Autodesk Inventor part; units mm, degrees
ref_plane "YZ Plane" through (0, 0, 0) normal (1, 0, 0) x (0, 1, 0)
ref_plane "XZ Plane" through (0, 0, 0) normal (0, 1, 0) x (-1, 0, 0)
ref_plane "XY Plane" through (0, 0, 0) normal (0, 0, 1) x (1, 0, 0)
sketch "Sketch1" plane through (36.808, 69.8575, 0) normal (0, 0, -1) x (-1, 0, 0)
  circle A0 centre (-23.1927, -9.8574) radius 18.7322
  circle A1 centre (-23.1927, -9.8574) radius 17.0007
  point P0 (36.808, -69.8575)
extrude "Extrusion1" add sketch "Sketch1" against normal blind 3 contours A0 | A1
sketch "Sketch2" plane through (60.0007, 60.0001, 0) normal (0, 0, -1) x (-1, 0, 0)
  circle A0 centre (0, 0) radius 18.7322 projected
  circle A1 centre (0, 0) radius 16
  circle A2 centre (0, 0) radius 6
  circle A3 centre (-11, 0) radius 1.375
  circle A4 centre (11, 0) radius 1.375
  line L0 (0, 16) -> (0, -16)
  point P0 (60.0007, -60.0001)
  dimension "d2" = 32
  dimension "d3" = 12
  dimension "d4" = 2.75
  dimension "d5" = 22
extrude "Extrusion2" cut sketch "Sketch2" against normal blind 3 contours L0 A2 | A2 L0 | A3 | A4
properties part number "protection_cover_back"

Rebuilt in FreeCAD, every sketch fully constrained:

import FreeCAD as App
import Part
import Sketcher
Q = App.Units.Quantity

doc = App.newDocument("Part")
body = doc.addObject("PartDesign::Body", "Body")

# Sketch on XY plane
sketch1 = body.newObject("Sketcher::SketchObject", "Sketch")
sketch1.AttachmentSupport = (doc.getObject("XY_Plane"), [""])
sketch1.MapMode = "FlatFace"
sketch1.addGeometry(Part.Circle(App.Vector(60.0007, 60.0001, 0), App.Vector(0, 0, 1), 18.7322), False)
sketch1.addConstraint(Sketcher.Constraint("DistanceY", -1, 1, 0, 3, Q("60 mm")))
sketch1.addConstraint(Sketcher.Constraint("Diameter", 0, Q("37.4644 mm")))
sketch1.addConstraint(Sketcher.Constraint("DistanceX", -1, 1, 0, 3, Q("60.0007 mm")))
pad1 = body.newObject("PartDesign::Pad", "Pad")
pad1.Profile = sketch1
pad1.Length = 3

# Sketch on XY plane
sketch2 = body.newObject("Sketcher::SketchObject", "Sketch001")
sketch2.AttachmentSupport = (doc.getObject("XY_Plane"), [""])
sketch2.MapMode = "FlatFace"
sketch2.addGeometry(Part.Circle(App.Vector(60.0007, 60.0001, 0), App.Vector(0, 0, 1), 6), False)
sketch2.addGeometry(Part.Circle(App.Vector(71.0007, 60.0001, 0), App.Vector(0, 0, 1), 1.375), False)
sketch2.addGeometry(Part.Circle(App.Vector(49.0007, 60.0001, 0), App.Vector(0, 0, 1), 1.375), False)
sketch2.addConstraint(Sketcher.Constraint("Equal", 1, 2))
sketch2.addConstraint(Sketcher.Constraint("Horizontal", 0, 3, 1, 3))
sketch2.addConstraint(Sketcher.Constraint("Horizontal", 1, 3, 2, 3))
sketch2.addConstraint(Sketcher.Constraint("Diameter", 0, Q("12 mm")))
sketch2.addConstraint(Sketcher.Constraint("Diameter", 1, Q("2.75 mm")))
sketch2.addConstraint(Sketcher.Constraint("DistanceX", 2, 3, 1, 3, Q("22 mm")))
sketch2.addConstraint(Sketcher.Constraint("DistanceY", -1, 1, 0, 3, Q("60 mm")))
sketch2.addConstraint(Sketcher.Constraint("DistanceX", 0, 3, 1, 3, Q("11 mm")))
sketch2.addConstraint(Sketcher.Constraint("DistanceX", -1, 1, 0, 3, Q("60.0007 mm")))
pocket1 = body.newObject("PartDesign::Pocket", "Pocket")
pocket1.Profile = sketch2
pocket1.Length = 3
pocket1.Reversed = True

doc.recompute()
